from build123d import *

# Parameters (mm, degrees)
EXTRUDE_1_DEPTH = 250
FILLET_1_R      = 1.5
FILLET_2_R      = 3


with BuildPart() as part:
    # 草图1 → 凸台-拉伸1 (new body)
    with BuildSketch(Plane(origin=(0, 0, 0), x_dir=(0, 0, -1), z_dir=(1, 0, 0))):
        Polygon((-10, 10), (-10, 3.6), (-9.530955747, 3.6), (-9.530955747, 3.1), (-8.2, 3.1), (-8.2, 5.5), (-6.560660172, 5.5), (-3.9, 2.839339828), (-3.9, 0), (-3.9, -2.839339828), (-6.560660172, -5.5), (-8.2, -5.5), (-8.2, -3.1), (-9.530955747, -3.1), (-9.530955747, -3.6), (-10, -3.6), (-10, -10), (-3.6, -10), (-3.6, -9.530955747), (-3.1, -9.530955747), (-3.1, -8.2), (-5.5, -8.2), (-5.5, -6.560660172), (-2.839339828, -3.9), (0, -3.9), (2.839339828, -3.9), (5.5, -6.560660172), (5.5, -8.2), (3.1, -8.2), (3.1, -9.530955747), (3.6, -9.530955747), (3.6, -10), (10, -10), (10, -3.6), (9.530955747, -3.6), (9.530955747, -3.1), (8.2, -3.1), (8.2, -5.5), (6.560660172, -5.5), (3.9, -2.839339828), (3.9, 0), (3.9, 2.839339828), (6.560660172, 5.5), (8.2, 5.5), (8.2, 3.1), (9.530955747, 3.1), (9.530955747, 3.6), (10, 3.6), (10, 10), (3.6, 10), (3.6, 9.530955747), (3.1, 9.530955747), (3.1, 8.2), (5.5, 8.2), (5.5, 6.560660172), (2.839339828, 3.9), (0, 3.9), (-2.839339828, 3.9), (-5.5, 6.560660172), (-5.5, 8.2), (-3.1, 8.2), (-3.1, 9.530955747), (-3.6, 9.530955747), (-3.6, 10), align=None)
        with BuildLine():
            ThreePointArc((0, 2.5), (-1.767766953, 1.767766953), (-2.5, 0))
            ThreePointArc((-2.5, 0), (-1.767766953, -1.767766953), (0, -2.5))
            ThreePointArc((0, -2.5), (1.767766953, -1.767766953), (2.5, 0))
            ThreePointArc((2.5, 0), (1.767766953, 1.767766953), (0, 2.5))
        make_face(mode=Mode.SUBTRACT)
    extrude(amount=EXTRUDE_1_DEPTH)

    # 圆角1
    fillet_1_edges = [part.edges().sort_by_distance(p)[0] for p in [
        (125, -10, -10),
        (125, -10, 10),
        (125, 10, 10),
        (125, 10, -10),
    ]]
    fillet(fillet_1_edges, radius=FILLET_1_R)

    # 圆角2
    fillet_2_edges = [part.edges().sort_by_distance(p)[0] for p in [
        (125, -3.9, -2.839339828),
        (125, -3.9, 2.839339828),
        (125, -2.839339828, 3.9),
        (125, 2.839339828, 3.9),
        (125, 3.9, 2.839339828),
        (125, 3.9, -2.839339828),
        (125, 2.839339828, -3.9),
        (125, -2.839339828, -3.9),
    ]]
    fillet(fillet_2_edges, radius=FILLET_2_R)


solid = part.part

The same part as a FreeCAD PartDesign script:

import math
import FreeCAD as App
import Part
import Sketcher
Q = App.Units.Quantity


def edges_at(feature, points):
    """Names of the edges that pass closest to the given points."""
    edges = feature.Shape.Edges
    near = lambda p: min(range(len(edges)), key=lambda i: edges[i].distToShape(Part.Vertex(*p))[0])
    return sorted({f"Edge{near(p) + 1}" for p in points})


def add_polygon(sketch, points):
    """Adds a closed chain of lines whose ends are joined by coincident constraints."""
    first, n = sketch.GeometryCount, len(points)
    for a, b in zip(points, points[1:] + points[:1]):
        sketch.addGeometry(Part.LineSegment(App.Vector(*a, 0), App.Vector(*b, 0)), False)
    for i in range(n):
        sketch.addConstraint(Sketcher.Constraint("Coincident", first + i, 2, first + (i + 1) % n, 1))

doc = App.newDocument("Part")
body = doc.addObject("PartDesign::Body", "Body")

sketch1 = body.newObject("Sketcher::SketchObject", "Sketch")
sketch1.AttachmentSupport = (doc.getObject("YZ_Plane"), [""])
sketch1.MapMode = "FlatFace"
add_polygon(sketch1, [(10, 10), (3.6, 10), (3.6, 9.53), (3.1, 9.53), (3.1, 8.2), (5.5, 8.2), (5.5, 6.56), (2.84, 3.9), (-2.84, 3.9), (-5.5, 6.56), (-5.5, 8.2), (-3.1, 8.2), (-3.1, 9.53), (-3.6, 9.53), (-3.6, 10), (-10, 10), (-10, 3.6), (-9.53, 3.6), (-9.53, 3.1), (-8.2, 3.1), (-8.2, 5.5), (-6.56, 5.5), (-3.9, 2.84), (-3.9, -2.84), (-6.56, -5.5), (-8.2, -5.5), (-8.2, -3.1), (-9.53, -3.1), (-9.53, -3.6), (-10, -3.6), (-10, -10), (-3.6, -10), (-3.6, -9.53), (-3.1, -9.53), (-3.1, -8.2), (-5.5, -8.2), (-5.5, -6.56), (-2.84, -3.9), (2.84, -3.9), (5.5, -6.56), (5.5, -8.2), (3.1, -8.2), (3.1, -9.53), (3.6, -9.53), (3.6, -10), (10, -10), (10, -3.6), (9.53, -3.6), (9.53, -3.1), (8.2, -3.1), (8.2, -5.5), (6.56, -5.5), (3.9, -2.84), (3.9, 2.84), (6.56, 5.5), (8.2, 5.5), (8.2, 3.1), (9.53, 3.1), (9.53, 3.6), (10, 3.6)])
sketch1.addGeometry(Part.ArcOfCircle(Part.Circle(App.Vector(0, 0, 0), App.Vector(0, 0, 1), 2.5), math.radians(0), math.radians(90)), False)
sketch1.addGeometry(Part.ArcOfCircle(Part.Circle(App.Vector(0, 0, 0), App.Vector(0, 0, 1), 2.5), math.radians(-90), math.radians(0)), False)
sketch1.addGeometry(Part.ArcOfCircle(Part.Circle(App.Vector(0, 0, 0), App.Vector(0, 0, 1), 2.5), math.radians(180), math.radians(270)), False)
sketch1.addGeometry(Part.ArcOfCircle(Part.Circle(App.Vector(0, 0, 0), App.Vector(0, 0, 1), 2.5), math.radians(90), math.radians(180)), False)
sketch1.addConstraint([
    Sketcher.Constraint("Tangent", 60, 1, 61, 2),
    Sketcher.Constraint("Tangent", 61, 1, 62, 2),
    Sketcher.Constraint("Tangent", 62, 1, 63, 2),
    Sketcher.Constraint("Tangent", 63, 1, 60, 2),
    Sketcher.Constraint("Horizontal", 0),
    Sketcher.Constraint("Vertical", 1),
    Sketcher.Constraint("Horizontal", 2),
    Sketcher.Constraint("Vertical", 3),
    Sketcher.Constraint("Horizontal", 4),
    Sketcher.Constraint("Vertical", 5),
    Sketcher.Constraint("Horizontal", 7),
    Sketcher.Constraint("Vertical", 9),
    Sketcher.Constraint("Horizontal", 10),
    Sketcher.Constraint("Vertical", 11),
    Sketcher.Constraint("Horizontal", 12),
    Sketcher.Constraint("Vertical", 13),
    Sketcher.Constraint("Horizontal", 14),
    Sketcher.Constraint("Vertical", 15),
    Sketcher.Constraint("Horizontal", 16),
    Sketcher.Constraint("Vertical", 17),
    Sketcher.Constraint("Horizontal", 18),
    Sketcher.Constraint("Vertical", 19),
    Sketcher.Constraint("Horizontal", 20),
    Sketcher.Constraint("Vertical", 22),
    Sketcher.Constraint("Horizontal", 24),
    Sketcher.Constraint("Vertical", 25),
    Sketcher.Constraint("Horizontal", 26),
    Sketcher.Constraint("Vertical", 27),
    Sketcher.Constraint("Horizontal", 28),
    Sketcher.Constraint("Vertical", 29),
    Sketcher.Constraint("Horizontal", 30),
    Sketcher.Constraint("Vertical", 31),
    Sketcher.Constraint("Horizontal", 32),
    Sketcher.Constraint("Vertical", 33),
    Sketcher.Constraint("Horizontal", 34),
    Sketcher.Constraint("Vertical", 35),
    Sketcher.Constraint("Horizontal", 37),
    Sketcher.Constraint("Vertical", 39),
    Sketcher.Constraint("Horizontal", 40),
    Sketcher.Constraint("Vertical", 41),
    Sketcher.Constraint("Horizontal", 42),
    Sketcher.Constraint("Vertical", 43),
    Sketcher.Constraint("Horizontal", 44),
    Sketcher.Constraint("Vertical", 45),
    Sketcher.Constraint("Horizontal", 46),
    Sketcher.Constraint("Vertical", 47),
    Sketcher.Constraint("Horizontal", 48),
    Sketcher.Constraint("Vertical", 49),
    Sketcher.Constraint("Horizontal", 50),
    Sketcher.Constraint("Vertical", 52),
    Sketcher.Constraint("Horizontal", 54),
    Sketcher.Constraint("Vertical", 55),
    Sketcher.Constraint("Horizontal", 56),
    Sketcher.Constraint("Vertical", 57),
    Sketcher.Constraint("Horizontal", 58),
    Sketcher.Constraint("Vertical", 59),
    Sketcher.Constraint("Coincident", 60, 3, -1, 1),
    Sketcher.Constraint("Equal", 60, 61),
    Sketcher.Constraint("Symmetric", 0, 2, 30, 2, -1, 1),
    Sketcher.Constraint("Symmetric", 2, 2, 32, 2, -1, 1),
    Sketcher.Constraint("Symmetric", 4, 2, 34, 2, -1, 1),
    Sketcher.Constraint("Symmetric", 6, 2, 36, 2, -1, 1),
    Sketcher.Constraint("Symmetric", 8, 2, 38, 2, -1, 1),
    Sketcher.Constraint("Symmetric", 10, 2, 40, 2, -1, 1),
    Sketcher.Constraint("Symmetric", 12, 2, 42, 2, -1, 1),
    Sketcher.Constraint("Symmetric", 14, 2, 44, 2, -1, 1),
    Sketcher.Constraint("Symmetric", 16, 2, 46, 2, -1, 1),
    Sketcher.Constraint("Symmetric", 18, 2, 48, 2, -1, 1),
    Sketcher.Constraint("Symmetric", 20, 2, 50, 2, -1, 1),
    Sketcher.Constraint("Symmetric", 21, 2, 51, 2, -1, 1),
    Sketcher.Constraint("Symmetric", 23, 2, 53, 2, -1, 1),
    Sketcher.Constraint("Symmetric", 25, 2, 55, 2, -1, 1),
    Sketcher.Constraint("Symmetric", 27, 2, 57, 2, -1, 1),
    Sketcher.Constraint("Symmetric", 5, 2, 8, 2, -2),
    Sketcher.Constraint("Symmetric", 3, 2, 10, 2, -2),
    Sketcher.Constraint("Symmetric", 1, 2, 12, 2, -2),
    Sketcher.Constraint("Symmetric", 29, 2, 44, 2, -2),
    Sketcher.Constraint("Symmetric", 27, 2, 46, 2, -2),
    Sketcher.Constraint("Symmetric", 25, 2, 48, 2, -2),
    Sketcher.Constraint("Symmetric", 23, 2, 50, 2, -2),
    Sketcher.Constraint("PointOnObject", 60, 1, -1),
    Sketcher.Constraint("PointOnObject", 61, 1, -2),
    Sketcher.Constraint("PointOnObject", 62, 1, -1),
    Sketcher.Constraint("PointOnObject", 63, 1, -2),
    Sketcher.Constraint("Perpendicular", 6, 8),
    Sketcher.Constraint("Parallel", 8, 21),
    Sketcher.Constraint("Perpendicular", 21, 23),
    Sketcher.Constraint("Parallel", 23, 36),
    Sketcher.Constraint("Perpendicular", 36, 38),
    Sketcher.Constraint("Perpendicular", 51, 53),
    Sketcher.Constraint("Horizontal", 22, 2, 51, 2),
    Sketcher.Constraint("Vertical", 45, 2, 58, 2),
    Sketcher.Constraint("Equal", 58, 1),
    Sketcher.Constraint("Equal", 56, 3),
    Sketcher.Constraint("Equal", 54, 5),
    Sketcher.Constraint("Equal", 44, 15),
    Sketcher.Constraint("Equal", 42, 17),
    Sketcher.Constraint("Equal", 40, 19),
    Sketcher.Constraint("Equal", 37, 22),
    Sketcher.Constraint("Equal", 8, 21),
    Sketcher.Constraint("Radius", 60, Q("2.5 mm")),
    Sketcher.Constraint("DistanceX", 0, 2, 0, 1, Q("6.4 mm")),
    Sketcher.Constraint("DistanceX", 2, 2, 2, 1, Q("0.5 mm")),
    Sketcher.Constraint("DistanceX", 4, 1, 4, 2, Q("2.4 mm")),
    Sketcher.Constraint("DistanceY", -1, 1, 0, 2, Q("10 mm")),
    Sketcher.Constraint("DistanceY", -1, 1, 3, 2, Q("8.2 mm")),
    Sketcher.Constraint("DistanceY", -1, 1, 6, 2, Q("3.9 mm")),
    Sketcher.Constraint("DistanceX", 7, 2, 7, 1, Q("5.67868 mm")),
    Sketcher.Constraint("DistanceX", 16, 1, 16, 2, Q("0.469044 mm")),
])
pad1 = body.newObject("PartDesign::Pad", "Pad")
pad1.Profile = sketch1
pad1.Length = 250
doc.recompute()

fillet = body.newObject("PartDesign::Fillet", "Fillet")
fillet.Base = (pad1, edges_at(pad1, [
    (125, -10, -10),
    (125, -10, 10),
    (125, 10, 10),
    (125, 10, -10),
]))
fillet.Radius = 1.5
doc.recompute()

fillet2 = body.newObject("PartDesign::Fillet", "Fillet001")
fillet2.Base = (fillet, edges_at(fillet, [
    (125, -3.9, -2.839),
    (125, -3.9, 2.839),
    (125, -2.839, 3.9),
    (125, 2.839, 3.9),
    (125, 3.9, 2.839),
    (125, 3.9, -2.839),
    (125, 2.839, -3.9),
    (125, -2.839, -3.9),
]))
fillet2.Radius = 3

doc.recompute()
